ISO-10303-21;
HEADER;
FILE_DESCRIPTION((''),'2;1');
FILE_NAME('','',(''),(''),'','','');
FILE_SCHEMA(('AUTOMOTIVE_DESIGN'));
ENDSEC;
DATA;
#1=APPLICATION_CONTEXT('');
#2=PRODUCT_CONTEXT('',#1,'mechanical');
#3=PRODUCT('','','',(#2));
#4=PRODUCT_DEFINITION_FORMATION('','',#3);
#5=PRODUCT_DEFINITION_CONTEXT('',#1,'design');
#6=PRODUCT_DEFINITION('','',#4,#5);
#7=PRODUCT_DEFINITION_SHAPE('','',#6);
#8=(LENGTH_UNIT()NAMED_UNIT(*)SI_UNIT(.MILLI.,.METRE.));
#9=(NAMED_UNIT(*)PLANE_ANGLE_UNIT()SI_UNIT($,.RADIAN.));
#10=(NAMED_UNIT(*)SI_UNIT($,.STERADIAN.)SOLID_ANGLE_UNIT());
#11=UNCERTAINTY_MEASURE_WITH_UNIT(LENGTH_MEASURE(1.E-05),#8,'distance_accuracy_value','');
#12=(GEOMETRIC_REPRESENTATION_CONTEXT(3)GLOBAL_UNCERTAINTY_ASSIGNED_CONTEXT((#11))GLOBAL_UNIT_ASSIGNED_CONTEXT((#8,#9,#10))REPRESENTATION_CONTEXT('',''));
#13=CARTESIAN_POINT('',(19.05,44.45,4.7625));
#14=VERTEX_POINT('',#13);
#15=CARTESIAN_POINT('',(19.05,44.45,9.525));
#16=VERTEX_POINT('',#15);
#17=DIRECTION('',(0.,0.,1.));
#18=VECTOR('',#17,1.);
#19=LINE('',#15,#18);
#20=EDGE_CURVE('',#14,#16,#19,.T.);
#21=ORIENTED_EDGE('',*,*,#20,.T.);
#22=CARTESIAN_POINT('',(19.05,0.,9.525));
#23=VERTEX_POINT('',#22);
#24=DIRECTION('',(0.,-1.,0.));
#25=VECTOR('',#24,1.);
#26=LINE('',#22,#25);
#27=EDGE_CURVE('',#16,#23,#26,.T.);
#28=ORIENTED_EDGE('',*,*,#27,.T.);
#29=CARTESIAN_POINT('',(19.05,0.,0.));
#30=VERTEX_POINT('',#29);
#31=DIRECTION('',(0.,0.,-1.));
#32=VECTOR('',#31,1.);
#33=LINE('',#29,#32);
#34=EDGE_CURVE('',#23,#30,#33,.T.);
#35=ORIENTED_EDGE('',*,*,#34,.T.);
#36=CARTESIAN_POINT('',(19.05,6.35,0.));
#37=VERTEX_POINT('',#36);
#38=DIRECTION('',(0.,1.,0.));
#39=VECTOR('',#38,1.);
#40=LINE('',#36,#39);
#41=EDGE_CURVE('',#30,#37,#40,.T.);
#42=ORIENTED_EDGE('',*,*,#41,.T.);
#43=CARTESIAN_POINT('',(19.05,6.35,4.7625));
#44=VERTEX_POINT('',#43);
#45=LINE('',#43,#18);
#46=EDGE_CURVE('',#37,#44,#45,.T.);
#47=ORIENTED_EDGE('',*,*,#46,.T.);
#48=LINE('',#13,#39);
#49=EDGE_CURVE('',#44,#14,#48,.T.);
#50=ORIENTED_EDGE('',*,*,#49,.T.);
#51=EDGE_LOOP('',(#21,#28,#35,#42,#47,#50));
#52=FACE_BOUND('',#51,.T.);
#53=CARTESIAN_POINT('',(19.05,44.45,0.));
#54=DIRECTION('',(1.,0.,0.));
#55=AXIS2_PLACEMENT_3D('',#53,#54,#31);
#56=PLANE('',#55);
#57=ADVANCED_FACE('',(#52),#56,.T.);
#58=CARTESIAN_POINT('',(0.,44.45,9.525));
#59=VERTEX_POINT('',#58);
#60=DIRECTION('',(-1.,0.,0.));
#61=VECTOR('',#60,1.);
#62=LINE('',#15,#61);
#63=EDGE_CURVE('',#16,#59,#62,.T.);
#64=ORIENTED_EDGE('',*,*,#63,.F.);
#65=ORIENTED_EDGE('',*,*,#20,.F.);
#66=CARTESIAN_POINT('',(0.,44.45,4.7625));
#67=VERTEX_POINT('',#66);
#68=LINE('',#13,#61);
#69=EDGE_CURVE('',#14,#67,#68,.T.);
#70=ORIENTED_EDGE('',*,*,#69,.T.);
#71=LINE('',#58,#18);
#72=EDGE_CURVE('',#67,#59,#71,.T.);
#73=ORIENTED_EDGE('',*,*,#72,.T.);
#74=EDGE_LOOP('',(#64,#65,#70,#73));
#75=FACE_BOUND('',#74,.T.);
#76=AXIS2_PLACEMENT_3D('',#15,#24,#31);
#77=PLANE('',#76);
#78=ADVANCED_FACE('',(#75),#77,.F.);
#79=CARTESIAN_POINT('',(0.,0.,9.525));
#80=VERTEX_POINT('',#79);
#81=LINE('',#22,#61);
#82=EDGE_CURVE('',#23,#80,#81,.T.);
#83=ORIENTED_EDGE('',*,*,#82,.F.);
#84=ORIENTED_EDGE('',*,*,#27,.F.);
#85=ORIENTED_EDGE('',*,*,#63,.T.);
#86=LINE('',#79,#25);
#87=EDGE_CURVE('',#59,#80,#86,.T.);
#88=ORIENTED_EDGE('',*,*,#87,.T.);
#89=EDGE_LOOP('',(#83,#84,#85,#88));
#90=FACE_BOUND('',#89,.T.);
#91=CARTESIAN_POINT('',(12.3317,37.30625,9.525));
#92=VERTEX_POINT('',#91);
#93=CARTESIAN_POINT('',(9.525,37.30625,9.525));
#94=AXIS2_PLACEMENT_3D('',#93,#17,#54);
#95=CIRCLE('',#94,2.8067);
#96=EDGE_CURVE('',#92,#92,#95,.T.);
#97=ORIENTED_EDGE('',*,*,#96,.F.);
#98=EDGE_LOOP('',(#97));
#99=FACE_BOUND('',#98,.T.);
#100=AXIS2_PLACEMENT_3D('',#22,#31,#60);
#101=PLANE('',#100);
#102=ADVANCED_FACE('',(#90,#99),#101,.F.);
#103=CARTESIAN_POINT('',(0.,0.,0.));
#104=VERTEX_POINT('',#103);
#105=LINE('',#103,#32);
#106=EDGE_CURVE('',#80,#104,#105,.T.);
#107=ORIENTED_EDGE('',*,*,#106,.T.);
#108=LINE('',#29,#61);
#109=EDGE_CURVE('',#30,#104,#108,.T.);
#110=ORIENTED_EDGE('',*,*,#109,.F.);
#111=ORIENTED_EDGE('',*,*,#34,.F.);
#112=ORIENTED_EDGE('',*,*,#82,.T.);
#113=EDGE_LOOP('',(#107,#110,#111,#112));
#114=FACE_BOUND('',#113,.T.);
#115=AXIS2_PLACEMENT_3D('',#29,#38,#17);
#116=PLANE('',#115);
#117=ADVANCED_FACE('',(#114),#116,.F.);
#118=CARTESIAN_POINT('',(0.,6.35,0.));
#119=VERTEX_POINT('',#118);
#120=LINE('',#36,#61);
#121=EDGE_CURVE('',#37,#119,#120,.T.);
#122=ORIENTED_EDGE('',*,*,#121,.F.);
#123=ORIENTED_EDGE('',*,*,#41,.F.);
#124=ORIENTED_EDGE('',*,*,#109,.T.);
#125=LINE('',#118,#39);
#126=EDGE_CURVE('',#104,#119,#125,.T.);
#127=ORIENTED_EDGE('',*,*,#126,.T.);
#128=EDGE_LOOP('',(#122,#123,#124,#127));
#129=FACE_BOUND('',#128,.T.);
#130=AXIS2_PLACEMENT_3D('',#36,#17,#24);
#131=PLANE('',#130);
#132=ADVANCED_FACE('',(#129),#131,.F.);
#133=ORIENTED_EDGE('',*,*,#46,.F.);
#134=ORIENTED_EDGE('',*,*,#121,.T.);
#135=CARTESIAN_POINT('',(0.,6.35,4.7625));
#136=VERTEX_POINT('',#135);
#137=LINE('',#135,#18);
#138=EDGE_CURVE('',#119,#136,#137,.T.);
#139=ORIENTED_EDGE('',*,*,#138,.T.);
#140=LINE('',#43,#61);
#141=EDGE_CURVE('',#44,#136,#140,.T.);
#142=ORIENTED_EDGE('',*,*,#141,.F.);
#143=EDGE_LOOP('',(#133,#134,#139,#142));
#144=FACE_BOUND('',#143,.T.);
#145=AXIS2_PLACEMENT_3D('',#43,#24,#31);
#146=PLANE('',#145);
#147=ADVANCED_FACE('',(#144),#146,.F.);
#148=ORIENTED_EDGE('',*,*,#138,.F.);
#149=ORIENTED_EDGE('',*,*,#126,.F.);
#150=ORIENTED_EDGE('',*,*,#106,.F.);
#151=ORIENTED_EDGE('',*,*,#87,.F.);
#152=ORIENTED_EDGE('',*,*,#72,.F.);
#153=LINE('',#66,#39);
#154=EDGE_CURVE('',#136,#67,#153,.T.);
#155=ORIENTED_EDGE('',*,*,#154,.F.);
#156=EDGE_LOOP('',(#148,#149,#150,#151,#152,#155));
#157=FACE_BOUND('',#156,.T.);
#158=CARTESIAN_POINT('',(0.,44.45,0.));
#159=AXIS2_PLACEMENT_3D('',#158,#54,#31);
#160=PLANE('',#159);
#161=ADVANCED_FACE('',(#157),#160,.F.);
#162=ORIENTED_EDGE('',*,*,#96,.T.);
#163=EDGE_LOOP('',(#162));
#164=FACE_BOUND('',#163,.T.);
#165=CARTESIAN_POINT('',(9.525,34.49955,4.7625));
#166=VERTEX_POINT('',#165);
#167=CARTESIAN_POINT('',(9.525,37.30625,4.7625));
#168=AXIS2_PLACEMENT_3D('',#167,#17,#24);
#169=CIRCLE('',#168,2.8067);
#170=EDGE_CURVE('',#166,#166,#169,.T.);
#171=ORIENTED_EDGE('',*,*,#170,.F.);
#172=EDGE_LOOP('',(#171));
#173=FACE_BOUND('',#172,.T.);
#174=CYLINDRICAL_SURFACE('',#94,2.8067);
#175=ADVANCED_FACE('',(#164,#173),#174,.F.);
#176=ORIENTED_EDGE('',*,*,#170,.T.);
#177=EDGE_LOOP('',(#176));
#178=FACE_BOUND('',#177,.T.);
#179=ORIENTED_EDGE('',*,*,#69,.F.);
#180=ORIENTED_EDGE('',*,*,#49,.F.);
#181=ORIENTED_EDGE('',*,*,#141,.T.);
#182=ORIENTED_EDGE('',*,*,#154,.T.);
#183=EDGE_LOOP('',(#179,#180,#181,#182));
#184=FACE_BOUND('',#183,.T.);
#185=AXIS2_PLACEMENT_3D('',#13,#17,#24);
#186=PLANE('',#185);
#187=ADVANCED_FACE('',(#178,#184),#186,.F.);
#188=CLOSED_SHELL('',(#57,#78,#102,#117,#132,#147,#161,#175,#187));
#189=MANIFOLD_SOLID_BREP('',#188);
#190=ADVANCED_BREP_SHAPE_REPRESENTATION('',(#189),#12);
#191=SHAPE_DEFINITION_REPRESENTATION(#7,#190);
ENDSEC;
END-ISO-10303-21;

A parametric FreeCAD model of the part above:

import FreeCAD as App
import Part
import Sketcher
from FreeCAD import Vector
Q = App.Units.Quantity


def add_polygon(sketch, points):
    """Adds a closed chain of lines whose ends are joined by coincident constraints."""
    first, n = sketch.GeometryCount, len(points)
    for a, b in zip(points, points[1:] + points[:1]):
        sketch.addGeometry(Part.LineSegment(App.Vector(*a, 0), App.Vector(*b, 0)), False)
    for i in range(n):
        sketch.addConstraint(Sketcher.Constraint("Coincident", first + i, 2, first + (i + 1) % n, 1))

doc = App.newDocument("Part")
params = doc.addObject("Spreadsheet::Sheet", "Params")
for row, (alias, value) in enumerate([
    ("sketch1_width", "1.5 in"),
    ("sketch1_width2", "0.25 in"),
    ("sketch1_height", "0.375 in"),
    ("pad1_length", "0.75 in"),
    ("sketch2_diameter", "0.221 in"),
    ("hole_diameter", "0.221 in"),
], start=1):
    params.set(f"A{row}", alias)
    params.set(f"B{row}", "=" + value)
    params.setAlias(f"B{row}", alias)

body = doc.addObject("PartDesign::Body", "Body")

sketch1 = body.newObject("Sketcher::SketchObject", "Sketch")
sketch1.AttachmentSupport = (doc.getObject("YZ_Plane"), [""])
sketch1.MapMode = "FlatFace"
add_polygon(sketch1, [(0, 9.5), (0, 0), (6.3, 0), (6.3, 4.8), (44.5, 4.8), (44.5, 9.5)])
sketch1.addConstraint([
    Sketcher.Constraint("Vertical", 0),
    Sketcher.Constraint("Horizontal", 1),
    Sketcher.Constraint("Vertical", 2),
    Sketcher.Constraint("Horizontal", 3),
    Sketcher.Constraint("Vertical", 4),
    Sketcher.Constraint("Horizontal", 5),
    Sketcher.Constraint("Coincident", 0, 2, -1, 1),
    Sketcher.Constraint("Equal", 2, 4),
    Sketcher.Constraint("DistanceX", 3, 1, 3, 2, Q("1.5 in")),
    Sketcher.Constraint("DistanceX", 1, 1, 1, 2, Q("0.25 in")),
    Sketcher.Constraint("DistanceY", 0, 2, 0, 1, Q("0.375 in")),
])
sketch1.setExpression("Constraints[14]", "Params.sketch1_width")
sketch1.setExpression("Constraints[15]", "Params.sketch1_width2")
sketch1.setExpression("Constraints[16]", "Params.sketch1_height")
pad1 = body.newObject("PartDesign::Pad", "Pad")
pad1.Profile = sketch1
pad1.setExpression("Length", "Params.pad1_length")

sketch2 = body.newObject("Sketcher::SketchObject", "Sketch001")
sketch2.AttachmentSupport = (doc.getObject("XY_Plane"), [""])
sketch2.MapMode = "FlatFace"
sketch2.AttachmentOffset = App.Placement(Vector(0, 0, 0.375 * 25.4), App.Rotation())
sketch2.addGeometry(Part.Circle(Vector(9.5, 37.3, 0), Vector(0, 0, 1), 2.8), False)
sketch2.addConstraint([
    Sketcher.Constraint("Diameter", 0, Q("0.221 in")),
    Sketcher.Constraint("DistanceX", -1, 1, 0, 3, Q("0.375 in")),
    Sketcher.Constraint("DistanceY", -1, 1, 0, 3, Q("1.46875 in")),
])
sketch2.setExpression("Constraints[0]", "Params.sketch2_diameter")
doc.recompute()
hole = body.newObject("PartDesign::Hole", "Hole")
hole.Profile = sketch2
hole.ThreadType = "None"
hole.setExpression("Diameter", "Params.hole_diameter")
hole.DepthType = "ThroughAll"

doc.recompute()
